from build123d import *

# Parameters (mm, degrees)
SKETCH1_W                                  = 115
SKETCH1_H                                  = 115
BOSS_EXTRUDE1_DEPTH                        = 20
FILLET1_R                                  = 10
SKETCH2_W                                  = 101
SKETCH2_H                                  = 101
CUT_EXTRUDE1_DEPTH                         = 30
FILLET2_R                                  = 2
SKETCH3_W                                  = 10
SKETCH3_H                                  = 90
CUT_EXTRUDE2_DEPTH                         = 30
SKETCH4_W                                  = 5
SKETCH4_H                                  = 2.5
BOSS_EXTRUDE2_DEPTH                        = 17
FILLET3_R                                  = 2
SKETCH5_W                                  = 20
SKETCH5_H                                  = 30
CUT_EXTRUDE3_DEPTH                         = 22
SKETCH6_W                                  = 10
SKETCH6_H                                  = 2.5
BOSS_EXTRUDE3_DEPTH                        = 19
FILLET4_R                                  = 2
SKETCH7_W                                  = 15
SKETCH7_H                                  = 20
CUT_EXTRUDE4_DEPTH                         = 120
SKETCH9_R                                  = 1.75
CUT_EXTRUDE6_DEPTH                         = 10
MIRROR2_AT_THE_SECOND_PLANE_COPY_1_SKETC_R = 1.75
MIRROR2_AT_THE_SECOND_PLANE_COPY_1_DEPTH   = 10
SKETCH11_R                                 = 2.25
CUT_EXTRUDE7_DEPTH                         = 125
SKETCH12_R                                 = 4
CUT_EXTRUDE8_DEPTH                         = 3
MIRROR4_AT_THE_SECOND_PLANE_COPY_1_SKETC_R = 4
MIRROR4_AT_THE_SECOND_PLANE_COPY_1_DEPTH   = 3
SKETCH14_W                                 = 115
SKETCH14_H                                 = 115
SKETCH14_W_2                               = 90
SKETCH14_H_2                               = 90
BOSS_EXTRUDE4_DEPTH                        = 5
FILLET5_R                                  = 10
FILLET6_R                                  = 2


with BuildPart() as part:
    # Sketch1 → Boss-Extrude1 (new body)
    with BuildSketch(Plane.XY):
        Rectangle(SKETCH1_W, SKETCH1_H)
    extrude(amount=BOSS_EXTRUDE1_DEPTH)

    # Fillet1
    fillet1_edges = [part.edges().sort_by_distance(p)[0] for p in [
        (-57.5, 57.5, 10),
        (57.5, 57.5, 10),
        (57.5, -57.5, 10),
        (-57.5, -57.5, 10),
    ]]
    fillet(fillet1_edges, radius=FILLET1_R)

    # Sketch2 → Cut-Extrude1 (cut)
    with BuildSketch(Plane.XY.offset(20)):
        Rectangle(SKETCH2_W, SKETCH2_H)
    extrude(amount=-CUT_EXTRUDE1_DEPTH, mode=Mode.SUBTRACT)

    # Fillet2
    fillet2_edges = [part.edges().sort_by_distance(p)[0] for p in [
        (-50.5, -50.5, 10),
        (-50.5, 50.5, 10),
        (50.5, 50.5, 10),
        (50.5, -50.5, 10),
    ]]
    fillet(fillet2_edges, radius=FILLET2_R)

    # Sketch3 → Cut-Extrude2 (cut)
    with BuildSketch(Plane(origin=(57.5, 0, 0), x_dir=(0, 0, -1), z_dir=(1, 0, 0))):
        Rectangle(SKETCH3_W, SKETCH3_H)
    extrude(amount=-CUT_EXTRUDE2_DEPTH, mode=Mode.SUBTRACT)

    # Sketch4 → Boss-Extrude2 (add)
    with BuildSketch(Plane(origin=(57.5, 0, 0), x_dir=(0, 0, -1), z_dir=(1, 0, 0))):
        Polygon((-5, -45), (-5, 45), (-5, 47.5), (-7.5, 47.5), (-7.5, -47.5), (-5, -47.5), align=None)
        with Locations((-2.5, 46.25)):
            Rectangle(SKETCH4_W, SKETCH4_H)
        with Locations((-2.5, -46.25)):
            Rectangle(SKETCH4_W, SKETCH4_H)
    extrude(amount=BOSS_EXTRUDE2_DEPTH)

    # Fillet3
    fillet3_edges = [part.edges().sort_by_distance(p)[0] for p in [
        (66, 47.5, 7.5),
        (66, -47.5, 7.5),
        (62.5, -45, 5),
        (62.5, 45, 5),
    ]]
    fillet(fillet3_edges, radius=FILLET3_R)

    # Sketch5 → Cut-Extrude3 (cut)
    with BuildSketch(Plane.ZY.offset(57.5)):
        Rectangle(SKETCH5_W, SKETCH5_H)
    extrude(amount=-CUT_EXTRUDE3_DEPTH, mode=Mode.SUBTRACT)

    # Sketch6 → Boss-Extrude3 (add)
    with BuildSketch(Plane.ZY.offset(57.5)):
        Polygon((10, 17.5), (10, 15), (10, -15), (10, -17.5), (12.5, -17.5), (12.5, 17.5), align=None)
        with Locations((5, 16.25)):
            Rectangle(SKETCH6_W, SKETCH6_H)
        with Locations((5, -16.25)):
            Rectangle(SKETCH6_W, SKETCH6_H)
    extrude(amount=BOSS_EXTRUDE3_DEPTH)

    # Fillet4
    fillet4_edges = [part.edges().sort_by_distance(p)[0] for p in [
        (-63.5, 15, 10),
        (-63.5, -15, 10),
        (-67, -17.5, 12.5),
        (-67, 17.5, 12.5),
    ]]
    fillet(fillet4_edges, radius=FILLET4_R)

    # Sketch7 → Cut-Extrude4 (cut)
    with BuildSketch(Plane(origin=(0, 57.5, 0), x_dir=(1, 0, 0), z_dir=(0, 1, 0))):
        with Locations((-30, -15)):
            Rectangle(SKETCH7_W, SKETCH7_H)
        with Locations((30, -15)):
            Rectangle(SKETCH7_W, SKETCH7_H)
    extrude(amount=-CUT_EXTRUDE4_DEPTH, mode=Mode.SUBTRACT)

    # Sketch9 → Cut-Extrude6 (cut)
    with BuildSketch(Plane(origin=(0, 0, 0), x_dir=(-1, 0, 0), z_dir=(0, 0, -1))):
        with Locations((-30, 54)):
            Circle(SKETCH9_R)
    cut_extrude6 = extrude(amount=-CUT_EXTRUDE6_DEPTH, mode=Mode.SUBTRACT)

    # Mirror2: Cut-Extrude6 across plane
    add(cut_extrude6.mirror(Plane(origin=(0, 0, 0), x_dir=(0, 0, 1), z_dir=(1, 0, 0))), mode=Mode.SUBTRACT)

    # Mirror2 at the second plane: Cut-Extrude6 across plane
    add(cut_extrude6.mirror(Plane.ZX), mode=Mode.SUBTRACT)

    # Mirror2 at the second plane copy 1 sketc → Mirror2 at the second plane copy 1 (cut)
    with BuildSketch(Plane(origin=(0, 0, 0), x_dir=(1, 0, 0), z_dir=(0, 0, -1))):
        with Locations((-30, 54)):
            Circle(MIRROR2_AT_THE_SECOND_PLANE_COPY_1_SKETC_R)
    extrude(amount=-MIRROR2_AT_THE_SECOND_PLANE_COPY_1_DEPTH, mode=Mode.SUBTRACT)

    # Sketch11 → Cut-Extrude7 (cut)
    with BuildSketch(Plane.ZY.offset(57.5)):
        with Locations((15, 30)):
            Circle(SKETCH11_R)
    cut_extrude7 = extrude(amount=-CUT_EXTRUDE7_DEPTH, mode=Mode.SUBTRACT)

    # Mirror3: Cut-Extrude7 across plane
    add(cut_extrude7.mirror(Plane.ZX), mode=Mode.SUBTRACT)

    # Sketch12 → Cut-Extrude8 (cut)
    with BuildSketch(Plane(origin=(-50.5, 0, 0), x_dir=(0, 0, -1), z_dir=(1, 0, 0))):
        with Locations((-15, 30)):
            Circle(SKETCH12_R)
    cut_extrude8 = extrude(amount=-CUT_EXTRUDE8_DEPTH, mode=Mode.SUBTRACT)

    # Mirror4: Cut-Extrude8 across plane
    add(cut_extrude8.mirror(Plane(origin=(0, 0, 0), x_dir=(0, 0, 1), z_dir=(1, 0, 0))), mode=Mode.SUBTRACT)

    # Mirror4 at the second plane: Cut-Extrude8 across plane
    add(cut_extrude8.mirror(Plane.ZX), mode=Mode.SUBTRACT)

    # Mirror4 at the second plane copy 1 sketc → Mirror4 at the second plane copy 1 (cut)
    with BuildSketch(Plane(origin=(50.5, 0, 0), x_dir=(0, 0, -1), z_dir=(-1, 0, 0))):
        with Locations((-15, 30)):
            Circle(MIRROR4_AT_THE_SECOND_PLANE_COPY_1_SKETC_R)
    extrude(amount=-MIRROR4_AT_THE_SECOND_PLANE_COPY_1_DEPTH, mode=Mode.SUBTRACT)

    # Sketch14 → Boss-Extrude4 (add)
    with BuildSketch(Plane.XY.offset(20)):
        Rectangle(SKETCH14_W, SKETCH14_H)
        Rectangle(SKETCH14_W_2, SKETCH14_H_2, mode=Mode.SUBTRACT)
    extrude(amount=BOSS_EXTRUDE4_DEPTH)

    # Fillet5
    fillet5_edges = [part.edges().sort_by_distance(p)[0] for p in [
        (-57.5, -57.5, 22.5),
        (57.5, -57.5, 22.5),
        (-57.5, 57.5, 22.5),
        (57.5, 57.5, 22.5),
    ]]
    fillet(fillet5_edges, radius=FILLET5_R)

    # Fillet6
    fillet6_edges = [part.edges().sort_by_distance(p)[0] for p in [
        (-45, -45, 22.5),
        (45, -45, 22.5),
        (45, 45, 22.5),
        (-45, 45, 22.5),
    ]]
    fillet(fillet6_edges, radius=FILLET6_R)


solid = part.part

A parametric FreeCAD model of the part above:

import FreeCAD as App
import Part
import Sketcher

V = App.Vector
Q = App.Units.Quantity


def edges_at(feature, points):
    """Names of the edges that pass closest to the given points."""
    edges = feature.Shape.Edges
    near = lambda p: min(range(len(edges)), key=lambda i: edges[i].distToShape(Part.Vertex(*p))[0])
    return sorted({f"Edge{near(p) + 1}" for p in points})


def add_polygon(sketch, points):
    """Adds a closed chain of lines whose ends are joined by coincident constraints."""
    first, n = sketch.GeometryCount, len(points)
    for a, b in zip(points, points[1:] + points[:1]):
        sketch.addGeometry(Part.LineSegment(App.Vector(*a, 0), App.Vector(*b, 0)), False)
    for i in range(n):
        sketch.addConstraint(Sketcher.Constraint("Coincident", first + i, 2, first + (i + 1) % n, 1))

doc = App.newDocument("Part")
params = doc.addObject("Spreadsheet::Sheet", "Params")
for row, (alias, value) in enumerate([
    ("sketch1_width", "115 mm"),
    ("pad1_length", "20 mm"),
    ("fillet_radius", "10 mm"),
    ("sketch2_width", "101 mm"),
    ("pocket1_length", "30 mm"),
    ("fillet2_radius", "2 mm"),
    ("sketch3_width", "90 mm"),
    ("sketch3_height", "10 mm"),
    ("pocket2_length", "30 mm"),
    ("sketch4_width", "95 mm"),
    ("sketch4_width2", "90 mm"),
    ("sketch4_height", "5 mm"),
    ("sketch4_height2", "7.5 mm"),
    ("pad2_length", "17 mm"),
    ("fillet3_radius", "2 mm"),
    ("sketch5_width", "30 mm"),
    ("sketch5_height", "20 mm"),
    ("pocket3_length", "22 mm"),
    ("sketch6_width", "30 mm"),
    ("sketch6_width2", "35 mm"),
    ("sketch6_height", "10 mm"),
    ("sketch6_height2", "12.5 mm"),
    ("pad3_length", "19 mm"),
    ("fillet4_radius", "2 mm"),
    ("sketch7_width", "15 mm"),
    ("sketch7_height", "20 mm"),
    ("pocket4_length", "120 mm"),
    ("sketch8_diameter", "3.5 mm"),
    ("pocket5_length", "10 mm"),
    ("sketch9_diameter", "3.5 mm"),
    ("pocket6_length", "10 mm"),
    ("sketch10_diameter", "4.5 mm"),
    ("pocket7_length", "125 mm"),
    ("sketch11_diameter", "8 mm"),
    ("pocket8_length", "3 mm"),
    ("sketch12_diameter", "8 mm"),
    ("pocket9_length", "3 mm"),
    ("sketch13_width", "115 mm"),
    ("sketch13_width2", "90 mm"),
    ("pad4_length", "5 mm"),
    ("fillet5_radius", "10 mm"),
    ("fillet6_radius", "2 mm"),
], start=1):
    params.set(f"A{row}", alias)
    params.set(f"B{row}", "=" + value)
    params.setAlias(f"B{row}", alias)

body = doc.addObject("PartDesign::Body", "Body")

sketch1 = doc.addObject("Sketcher::SketchObject", "Sketch")
body.addObject(sketch1)
sketch1.AttachmentSupport = (doc.XY_Plane, [""])
sketch1.MapMode = "FlatFace"
add_polygon(sketch1, [(-58, 58), (-58, -58), (58, -58), (58, 58)])
sketch1.addConstraint([
    Sketcher.Constraint("Vertical", 0),
    Sketcher.Constraint("Horizontal", 1),
    Sketcher.Constraint("Vertical", 2),
    Sketcher.Constraint("Horizontal", 3),
    Sketcher.Constraint("Symmetric", 0, 2, 2, 2, -1, 1),
    Sketcher.Constraint("Equal", 3, 0),
    Sketcher.Constraint("DistanceX", 1, 1, 1, 2, Q("115 mm")),
])
sketch1.setExpression("Constraints[10]", "Params.sketch1_width")
pad1 = doc.addObject("PartDesign::Pad", "Pad")
body.addObject(pad1)
pad1.Profile = sketch1
pad1.setExpression("Length", "Params.pad1_length")
doc.recompute()

fillet = doc.addObject("PartDesign::Fillet", "Fillet")
body.addObject(fillet)
fillet.Base = (pad1, edges_at(pad1, [
    (-57.5, 57.5, 10),
    (57.5, 57.5, 10),
    (57.5, -57.5, 10),
    (-57.5, -57.5, 10),
]))
fillet.setExpression("Radius", "Params.fillet_radius")

sketch2 = doc.addObject("Sketcher::SketchObject", "Sketch001")
body.addObject(sketch2)
sketch2.AttachmentSupport = (doc.XY_Plane, [""])
sketch2.MapMode = "FlatFace"
sketch2.AttachmentOffset = App.Placement(V(0, 0, 20), App.Rotation())
add_polygon(sketch2, [(-50, 50), (-50, -50), (50, -50), (50, 50)])
sketch2.addConstraint([
    Sketcher.Constraint("Vertical", 0),
    Sketcher.Constraint("Horizontal", 1),
    Sketcher.Constraint("Vertical", 2),
    Sketcher.Constraint("Horizontal", 3),
    Sketcher.Constraint("Symmetric", 0, 2, 2, 2, -1, 1),
    Sketcher.Constraint("Equal", 3, 0),
    Sketcher.Constraint("DistanceX", 1, 1, 1, 2, Q("101 mm")),
])
sketch2.setExpression("Constraints[10]", "Params.sketch2_width")
pocket1 = doc.addObject("PartDesign::Pocket", "Pocket")
body.addObject(pocket1)
pocket1.Profile = sketch2
pocket1.setExpression("Length", "Params.pocket1_length")
doc.recompute()

fillet2 = doc.addObject("PartDesign::Fillet", "Fillet001")
body.addObject(fillet2)
fillet2.Base = (pocket1, edges_at(pocket1, [
    (-50.5, -50.5, 10),
    (-50.5, 50.5, 10),
    (50.5, 50.5, 10),
    (50.5, -50.5, 10),
]))
fillet2.setExpression("Radius", "Params.fillet2_radius")

sketch3 = doc.addObject("Sketcher::SketchObject", "Sketch002")
body.addObject(sketch3)
sketch3.AttachmentSupport = (doc.YZ_Plane, [""])
sketch3.MapMode = "FlatFace"
sketch3.AttachmentOffset = App.Placement(V(0, 0, 57.5), App.Rotation())
add_polygon(sketch3, [(45, 5), (-45, 5), (-45, -5), (45, -5)])
sketch3.addConstraint([
    Sketcher.Constraint("Horizontal", 0),
    Sketcher.Constraint("Vertical", 1),
    Sketcher.Constraint("Horizontal", 2),
    Sketcher.Constraint("Vertical", 3),
    Sketcher.Constraint("Symmetric", 0, 2, 2, 2, -1, 1),
    Sketcher.Constraint("DistanceX", 0, 2, 0, 1, Q("90 mm")),
    Sketcher.Constraint("DistanceY", 1, 2, 1, 1, Q("10 mm")),
])
sketch3.setExpression("Constraints[9]", "Params.sketch3_width")
sketch3.setExpression("Constraints[10]", "Params.sketch3_height")
pocket2 = doc.addObject("PartDesign::Pocket", "Pocket001")
body.addObject(pocket2)
pocket2.Profile = sketch3
pocket2.setExpression("Length", "Params.pocket2_length")

sketch4 = doc.addObject("Sketcher::SketchObject", "Sketch003")
body.addObject(sketch4)
sketch4.AttachmentSupport = (doc.YZ_Plane, [""])
sketch4.MapMode = "FlatFace"
sketch4.AttachmentOffset = App.Placement(V(0, 0, 57.5), App.Rotation())
add_polygon(sketch4, [(47.5, 7.5), (-47.5, 7.5), (-47.5, 0), (-45, 0), (-45, 5), (45, 5), (45, 0), (47.5, 0)])
sketch4.addConstraint([
    Sketcher.Constraint("Horizontal", 0),
    Sketcher.Constraint("Vertical", 1),
    Sketcher.Constraint("Horizontal", 2),
    Sketcher.Constraint("Vertical", 3),
    Sketcher.Constraint("Horizontal", 4),
    Sketcher.Constraint("Vertical", 5),
    Sketcher.Constraint("Horizontal", 6),
    Sketcher.Constraint("Vertical", 7),
    Sketcher.Constraint("Symmetric", 2, 2, 5, 2, -1, 1),
    Sketcher.Constraint("Symmetric", 1, 2, 6, 2, -2),
    Sketcher.Constraint("DistanceX", 0, 2, 0, 1, Q("95 mm")),
    Sketcher.Constraint("DistanceX", 4, 1, 4, 2, Q("90 mm")),
    Sketcher.Constraint("DistanceY", 3, 1, 3, 2, Q("5 mm")),
    Sketcher.Constraint("DistanceY", 1, 2, 1, 1, Q("7.5 mm")),
])
sketch4.setExpression("Constraints[18]", "Params.sketch4_width")
sketch4.setExpression("Constraints[19]", "Params.sketch4_width2")
sketch4.setExpression("Constraints[20]", "Params.sketch4_height")
sketch4.setExpression("Constraints[21]", "Params.sketch4_height2")
pad2 = doc.addObject("PartDesign::Pad", "Pad001")
body.addObject(pad2)
pad2.Profile = sketch4
pad2.setExpression("Length", "Params.pad2_length")
doc.recompute()

fillet3 = doc.addObject("PartDesign::Fillet", "Fillet002")
body.addObject(fillet3)
fillet3.Base = (pad2, edges_at(pad2, [
    (66, 47.5, 7.5),
    (66, -47.5, 7.5),
    (62.5, -45, 5),
    (62.5, 45, 5),
]))
fillet3.setExpression("Radius", "Params.fillet3_radius")

sketch5 = doc.addObject("Sketcher::SketchObject", "Sketch004")
body.addObject(sketch5)
sketch5.AttachmentSupport = (doc.YZ_Plane, [""])
sketch5.MapMode = "FlatFace"
sketch5.AttachmentOffset = App.Placement(V(0, 0, -57.5), App.Rotation())
add_polygon(sketch5, [(15, -10), (-15, -10), (-15, 10), (15, 10)])
sketch5.addConstraint([
    Sketcher.Constraint("Horizontal", 0),
    Sketcher.Constraint("Vertical", 1),
    Sketcher.Constraint("Horizontal", 2),
    Sketcher.Constraint("Vertical", 3),
    Sketcher.Constraint("Symmetric", 0, 2, 2, 2, -1, 1),
    Sketcher.Constraint("DistanceX", 0, 2, 0, 1, Q("30 mm")),
    Sketcher.Constraint("DistanceY", 1, 1, 1, 2, Q("20 mm")),
])
sketch5.setExpression("Constraints[9]", "Params.sketch5_width")
sketch5.setExpression("Constraints[10]", "Params.sketch5_height")
pocket3 = doc.addObject("PartDesign::Pocket", "Pocket002")
body.addObject(pocket3)
pocket3.Profile = sketch5
pocket3.setExpression("Length", "Params.pocket3_length")
pocket3.Reversed = True

sketch6 = doc.addObject("Sketcher::SketchObject", "Sketch005")
body.addObject(sketch6)
sketch6.AttachmentSupport = (doc.YZ_Plane, [""])
sketch6.MapMode = "FlatFace"
sketch6.AttachmentOffset = App.Placement(V(0, 0, -57.5), App.Rotation())
add_polygon(sketch6, [(15, 10), (-15, 10), (-15, 0), (-17.5, 0), (-17.5, 12.5), (17.5, 12.5), (17.5, 0), (15, 0)])
sketch6.addConstraint([
    Sketcher.Constraint("Horizontal", 0),
    Sketcher.Constraint("Vertical", 1),
    Sketcher.Constraint("Horizontal", 2),
    Sketcher.Constraint("Vertical", 3),
    Sketcher.Constraint("Horizontal", 4),
    Sketcher.Constraint("Vertical", 5),
    Sketcher.Constraint("Horizontal", 6),
    Sketcher.Constraint("Vertical", 7),
    Sketcher.Constraint("Symmetric", 2, 2, 5, 2, -1, 1),
    Sketcher.Constraint("Symmetric", 1, 2, 6, 2, -2),
    Sketcher.Constraint("DistanceX", 0, 2, 0, 1, Q("30 mm")),
    Sketcher.Constraint("DistanceX", 4, 1, 4, 2, Q("35 mm")),
    Sketcher.Constraint("DistanceY", 1, 2, 1, 1, Q("10 mm")),
    Sketcher.Constraint("DistanceY", 3, 1, 3, 2, Q("12.5 mm")),
])
sketch6.setExpression("Constraints[18]", "Params.sketch6_width")
sketch6.setExpression("Constraints[19]", "Params.sketch6_width2")
sketch6.setExpression("Constraints[20]", "Params.sketch6_height")
sketch6.setExpression("Constraints[21]", "Params.sketch6_height2")
pad3 = doc.addObject("PartDesign::Pad", "Pad002")
body.addObject(pad3)
pad3.Profile = sketch6
pad3.setExpression("Length", "Params.pad3_length")
pad3.Reversed = True
doc.recompute()

fillet4 = doc.addObject("PartDesign::Fillet", "Fillet003")
body.addObject(fillet4)
fillet4.Base = (pad3, edges_at(pad3, [
    (-63.5, 15, 10),
    (-63.5, -15, 10),
    (-67, -17.5, 12.5),
    (-67, 17.5, 12.5),
]))
fillet4.setExpression("Radius", "Params.fillet4_radius")

sketch7 = doc.addObject("Sketcher::SketchObject", "Sketch006")
body.addObject(sketch7)
sketch7.AttachmentSupport = (doc.XZ_Plane, [""])
sketch7.MapMode = "FlatFace"
sketch7.AttachmentOffset = App.Placement(V(0, 0, -57.5), App.Rotation())
add_polygon(sketch7, [(-38, 5), (-38, 25), (-22, 25), (-22, 5)])
add_polygon(sketch7, [(22, 5), (22, 25), (38, 25), (38, 5)])
sketch7.addConstraint([
    Sketcher.Constraint("Vertical", 0),
    Sketcher.Constraint("Horizontal", 1),
    Sketcher.Constraint("Vertical", 2),
    Sketcher.Constraint("Horizontal", 3),
    Sketcher.Constraint("Vertical", 4),
    Sketcher.Constraint("Horizontal", 5),
    Sketcher.Constraint("Vertical", 6),
    Sketcher.Constraint("Horizontal", 7),
    Sketcher.Constraint("Symmetric", 1, 2, 4, 2, -2),
    Sketcher.Constraint("Symmetric", 3, 2, 6, 2, -2),
    Sketcher.Constraint("DistanceX", 1, 1, 1, 2, Q("15 mm")),
    Sketcher.Constraint("DistanceY", 0, 1, 0, 2, Q("20 mm")),
    Sketcher.Constraint("DistanceY", -1, 1, 0, 2, Q("25 mm")),
    Sketcher.Constraint("DistanceX", 1, 2, 4, 2, Q("45 mm")),
])
sketch7.setExpression("Constraints[18]", "Params.sketch7_width")
sketch7.setExpression("Constraints[19]", "Params.sketch7_height")
pocket4 = doc.addObject("PartDesign::Pocket", "Pocket003")
body.addObject(pocket4)
pocket4.Profile = sketch7
pocket4.setExpression("Length", "Params.pocket4_length")
pocket4.Reversed = True

sketch8 = doc.addObject("Sketcher::SketchObject", "Sketch007")
body.addObject(sketch8)
sketch8.AttachmentSupport = (doc.XY_Plane, [""])
sketch8.MapMode = "FlatFace"
sketch8.addGeometry(Part.Circle(V(30, 54, 0), V(0, 0, 1), 1.8), False)
sketch8.addConstraint([
    Sketcher.Constraint("Diameter", 0, Q("3.5 mm")),
    Sketcher.Constraint("DistanceX", -1, 1, 0, 3, Q("30 mm")),
    Sketcher.Constraint("DistanceY", -1, 1, 0, 3, Q("54 mm")),
])
sketch8.setExpression("Constraints[0]", "Params.sketch8_diameter")
pocket5 = doc.addObject("PartDesign::Pocket", "Pocket004")
body.addObject(pocket5)
pocket5.Profile = sketch8
pocket5.setExpression("Length", "Params.pocket5_length")
pocket5.Reversed = True
doc.recompute()

mirrored = doc.addObject("PartDesign::Mirrored", "Mirrored")
body.addObject(mirrored)
mirrored.Originals = [pocket5]
mirrored.MirrorPlane = (doc.YZ_Plane, [""])
body.Tip = mirrored
doc.recompute()

mirrored2 = doc.addObject("PartDesign::Mirrored", "Mirrored001")
body.addObject(mirrored2)
mirrored2.Originals = [pocket5]
mirrored2.MirrorPlane = (doc.XZ_Plane, [""])
body.Tip = mirrored2

sketch9 = doc.addObject("Sketcher::SketchObject", "Sketch008")
body.addObject(sketch9)
sketch9.AttachmentSupport = (doc.XY_Plane, [""])
sketch9.MapMode = "FlatFace"
sketch9.addGeometry(Part.Circle(V(-30, -54, 0), V(0, 0, 1), 1.8), False)
sketch9.addConstraint([
    Sketcher.Constraint("Diameter", 0, Q("3.5 mm")),
    Sketcher.Constraint("DistanceX", 0, 3, -1, 1, Q("30 mm")),
    Sketcher.Constraint("DistanceY", 0, 3, -1, 1, Q("54 mm")),
])
sketch9.setExpression("Constraints[0]", "Params.sketch9_diameter")
pocket6 = doc.addObject("PartDesign::Pocket", "Pocket005")
body.addObject(pocket6)
pocket6.Profile = sketch9
pocket6.setExpression("Length", "Params.pocket6_length")
pocket6.Reversed = True

sketch10 = doc.addObject("Sketcher::SketchObject", "Sketch009")
body.addObject(sketch10)
sketch10.AttachmentSupport = (doc.YZ_Plane, [""])
sketch10.MapMode = "FlatFace"
sketch10.AttachmentOffset = App.Placement(V(0, 0, -57.5), App.Rotation())
sketch10.addGeometry(Part.Circle(V(30, 15, 0), V(0, 0, 1), 2.2), False)
sketch10.addConstraint([
    Sketcher.Constraint("Diameter", 0, Q("4.5 mm")),
    Sketcher.Constraint("DistanceX", -1, 1, 0, 3, Q("30 mm")),
    Sketcher.Constraint("DistanceY", -1, 1, 0, 3, Q("15 mm")),
])
sketch10.setExpression("Constraints[0]", "Params.sketch10_diameter")
pocket7 = doc.addObject("PartDesign::Pocket", "Pocket006")
body.addObject(pocket7)
pocket7.Profile = sketch10
pocket7.setExpression("Length", "Params.pocket7_length")
pocket7.Reversed = True
doc.recompute()

mirrored3 = doc.addObject("PartDesign::Mirrored", "Mirrored002")
body.addObject(mirrored3)
mirrored3.Originals = [pocket7]
mirrored3.MirrorPlane = (doc.XZ_Plane, [""])
body.Tip = mirrored3

sketch11 = doc.addObject("Sketcher::SketchObject", "Sketch010")
body.addObject(sketch11)
sketch11.AttachmentSupport = (doc.YZ_Plane, [""])
sketch11.MapMode = "FlatFace"
sketch11.AttachmentOffset = App.Placement(V(0, 0, -50.5), App.Rotation())
sketch11.addGeometry(Part.Circle(V(30, 15, 0), V(0, 0, 1), 4), False)
sketch11.addConstraint([
    Sketcher.Constraint("Diameter", 0, Q("8 mm")),
    Sketcher.Constraint("DistanceX", -1, 1, 0, 3, Q("30 mm")),
    Sketcher.Constraint("DistanceY", -1, 1, 0, 3, Q("15 mm")),
])
sketch11.setExpression("Constraints[0]", "Params.sketch11_diameter")
pocket8 = doc.addObject("PartDesign::Pocket", "Pocket007")
body.addObject(pocket8)
pocket8.Profile = sketch11
pocket8.setExpression("Length", "Params.pocket8_length")
doc.recompute()

mirrored4 = doc.addObject("PartDesign::Mirrored", "Mirrored003")
body.addObject(mirrored4)
mirrored4.Originals = [pocket8]
mirrored4.MirrorPlane = (doc.YZ_Plane, [""])
body.Tip = mirrored4
doc.recompute()

mirrored5 = doc.addObject("PartDesign::Mirrored", "Mirrored004")
body.addObject(mirrored5)
mirrored5.Originals = [pocket8]
mirrored5.MirrorPlane = (doc.XZ_Plane, [""])
body.Tip = mirrored5

sketch12 = doc.addObject("Sketcher::SketchObject", "Sketch011")
body.addObject(sketch12)
sketch12.AttachmentSupport = (doc.YZ_Plane, [""])
sketch12.MapMode = "FlatFace"
sketch12.AttachmentOffset = App.Placement(V(0, 0, 50.5), App.Rotation())
sketch12.addGeometry(Part.Circle(V(-30, 15, 0), V(0, 0, 1), 4), False)
sketch12.addConstraint([
    Sketcher.Constraint("Diameter", 0, Q("8 mm")),
    Sketcher.Constraint("DistanceX", 0, 3, -1, 1, Q("30 mm")),
    Sketcher.Constraint("DistanceY", -1, 1, 0, 3, Q("15 mm")),
])
sketch12.setExpression("Constraints[0]", "Params.sketch12_diameter")
pocket9 = doc.addObject("PartDesign::Pocket", "Pocket008")
body.addObject(pocket9)
pocket9.Profile = sketch12
pocket9.setExpression("Length", "Params.pocket9_length")
pocket9.Reversed = True

sketch13 = doc.addObject("Sketcher::SketchObject", "Sketch012")
body.addObject(sketch13)
sketch13.AttachmentSupport = (doc.XY_Plane, [""])
sketch13.MapMode = "FlatFace"
sketch13.AttachmentOffset = App.Placement(V(0, 0, 20), App.Rotation())
add_polygon(sketch13, [(-58, 58), (-58, -58), (58, -58), (58, 58)])
add_polygon(sketch13, [(45, -45), (-45, -45), (-45, 45), (45, 45)])
sketch13.addConstraint([
    Sketcher.Constraint("Vertical", 0),
    Sketcher.Constraint("Horizontal", 1),
    Sketcher.Constraint("Vertical", 2),
    Sketcher.Constraint("Horizontal", 3),
    Sketcher.Constraint("Horizontal", 4),
    Sketcher.Constraint("Vertical", 5),
    Sketcher.Constraint("Horizontal", 6),
    Sketcher.Constraint("Vertical", 7),
    Sketcher.Constraint("Symmetric", 0, 2, 2, 2, -1, 1),
    Sketcher.Constraint("Symmetric", 4, 2, 6, 2, -1, 1),
    Sketcher.Constraint("Equal", 3, 0),
    Sketcher.Constraint("Equal", 6, 5),
    Sketcher.Constraint("DistanceX", 1, 1, 1, 2, Q("115 mm")),
    Sketcher.Constraint("DistanceX", 4, 2, 4, 1, Q("90 mm")),
])
sketch13.setExpression("Constraints[20]", "Params.sketch13_width")
sketch13.setExpression("Constraints[21]", "Params.sketch13_width2")
pad4 = doc.addObject("PartDesign::Pad", "Pad003")
body.addObject(pad4)
pad4.Profile = sketch13
pad4.setExpression("Length", "Params.pad4_length")
doc.recompute()

fillet5 = doc.addObject("PartDesign::Fillet", "Fillet004")
body.addObject(fillet5)
fillet5.Base = (pad4, edges_at(pad4, [
    (-57.5, -57.5, 22.5),
    (57.5, -57.5, 22.5),
    (-57.5, 57.5, 22.5),
    (57.5, 57.5, 22.5),
]))
fillet5.setExpression("Radius", "Params.fillet5_radius")
doc.recompute()

fillet6 = doc.addObject("PartDesign::Fillet", "Fillet005")
body.addObject(fillet6)
fillet6.Base = (fillet5, edges_at(fillet5, [
    (-45, -45, 22.5),
    (45, -45, 22.5),
    (45, 45, 22.5),
    (-45, 45, 22.5),
]))
fillet6.setExpression("Radius", "Params.fillet6_radius")

doc.recompute()
